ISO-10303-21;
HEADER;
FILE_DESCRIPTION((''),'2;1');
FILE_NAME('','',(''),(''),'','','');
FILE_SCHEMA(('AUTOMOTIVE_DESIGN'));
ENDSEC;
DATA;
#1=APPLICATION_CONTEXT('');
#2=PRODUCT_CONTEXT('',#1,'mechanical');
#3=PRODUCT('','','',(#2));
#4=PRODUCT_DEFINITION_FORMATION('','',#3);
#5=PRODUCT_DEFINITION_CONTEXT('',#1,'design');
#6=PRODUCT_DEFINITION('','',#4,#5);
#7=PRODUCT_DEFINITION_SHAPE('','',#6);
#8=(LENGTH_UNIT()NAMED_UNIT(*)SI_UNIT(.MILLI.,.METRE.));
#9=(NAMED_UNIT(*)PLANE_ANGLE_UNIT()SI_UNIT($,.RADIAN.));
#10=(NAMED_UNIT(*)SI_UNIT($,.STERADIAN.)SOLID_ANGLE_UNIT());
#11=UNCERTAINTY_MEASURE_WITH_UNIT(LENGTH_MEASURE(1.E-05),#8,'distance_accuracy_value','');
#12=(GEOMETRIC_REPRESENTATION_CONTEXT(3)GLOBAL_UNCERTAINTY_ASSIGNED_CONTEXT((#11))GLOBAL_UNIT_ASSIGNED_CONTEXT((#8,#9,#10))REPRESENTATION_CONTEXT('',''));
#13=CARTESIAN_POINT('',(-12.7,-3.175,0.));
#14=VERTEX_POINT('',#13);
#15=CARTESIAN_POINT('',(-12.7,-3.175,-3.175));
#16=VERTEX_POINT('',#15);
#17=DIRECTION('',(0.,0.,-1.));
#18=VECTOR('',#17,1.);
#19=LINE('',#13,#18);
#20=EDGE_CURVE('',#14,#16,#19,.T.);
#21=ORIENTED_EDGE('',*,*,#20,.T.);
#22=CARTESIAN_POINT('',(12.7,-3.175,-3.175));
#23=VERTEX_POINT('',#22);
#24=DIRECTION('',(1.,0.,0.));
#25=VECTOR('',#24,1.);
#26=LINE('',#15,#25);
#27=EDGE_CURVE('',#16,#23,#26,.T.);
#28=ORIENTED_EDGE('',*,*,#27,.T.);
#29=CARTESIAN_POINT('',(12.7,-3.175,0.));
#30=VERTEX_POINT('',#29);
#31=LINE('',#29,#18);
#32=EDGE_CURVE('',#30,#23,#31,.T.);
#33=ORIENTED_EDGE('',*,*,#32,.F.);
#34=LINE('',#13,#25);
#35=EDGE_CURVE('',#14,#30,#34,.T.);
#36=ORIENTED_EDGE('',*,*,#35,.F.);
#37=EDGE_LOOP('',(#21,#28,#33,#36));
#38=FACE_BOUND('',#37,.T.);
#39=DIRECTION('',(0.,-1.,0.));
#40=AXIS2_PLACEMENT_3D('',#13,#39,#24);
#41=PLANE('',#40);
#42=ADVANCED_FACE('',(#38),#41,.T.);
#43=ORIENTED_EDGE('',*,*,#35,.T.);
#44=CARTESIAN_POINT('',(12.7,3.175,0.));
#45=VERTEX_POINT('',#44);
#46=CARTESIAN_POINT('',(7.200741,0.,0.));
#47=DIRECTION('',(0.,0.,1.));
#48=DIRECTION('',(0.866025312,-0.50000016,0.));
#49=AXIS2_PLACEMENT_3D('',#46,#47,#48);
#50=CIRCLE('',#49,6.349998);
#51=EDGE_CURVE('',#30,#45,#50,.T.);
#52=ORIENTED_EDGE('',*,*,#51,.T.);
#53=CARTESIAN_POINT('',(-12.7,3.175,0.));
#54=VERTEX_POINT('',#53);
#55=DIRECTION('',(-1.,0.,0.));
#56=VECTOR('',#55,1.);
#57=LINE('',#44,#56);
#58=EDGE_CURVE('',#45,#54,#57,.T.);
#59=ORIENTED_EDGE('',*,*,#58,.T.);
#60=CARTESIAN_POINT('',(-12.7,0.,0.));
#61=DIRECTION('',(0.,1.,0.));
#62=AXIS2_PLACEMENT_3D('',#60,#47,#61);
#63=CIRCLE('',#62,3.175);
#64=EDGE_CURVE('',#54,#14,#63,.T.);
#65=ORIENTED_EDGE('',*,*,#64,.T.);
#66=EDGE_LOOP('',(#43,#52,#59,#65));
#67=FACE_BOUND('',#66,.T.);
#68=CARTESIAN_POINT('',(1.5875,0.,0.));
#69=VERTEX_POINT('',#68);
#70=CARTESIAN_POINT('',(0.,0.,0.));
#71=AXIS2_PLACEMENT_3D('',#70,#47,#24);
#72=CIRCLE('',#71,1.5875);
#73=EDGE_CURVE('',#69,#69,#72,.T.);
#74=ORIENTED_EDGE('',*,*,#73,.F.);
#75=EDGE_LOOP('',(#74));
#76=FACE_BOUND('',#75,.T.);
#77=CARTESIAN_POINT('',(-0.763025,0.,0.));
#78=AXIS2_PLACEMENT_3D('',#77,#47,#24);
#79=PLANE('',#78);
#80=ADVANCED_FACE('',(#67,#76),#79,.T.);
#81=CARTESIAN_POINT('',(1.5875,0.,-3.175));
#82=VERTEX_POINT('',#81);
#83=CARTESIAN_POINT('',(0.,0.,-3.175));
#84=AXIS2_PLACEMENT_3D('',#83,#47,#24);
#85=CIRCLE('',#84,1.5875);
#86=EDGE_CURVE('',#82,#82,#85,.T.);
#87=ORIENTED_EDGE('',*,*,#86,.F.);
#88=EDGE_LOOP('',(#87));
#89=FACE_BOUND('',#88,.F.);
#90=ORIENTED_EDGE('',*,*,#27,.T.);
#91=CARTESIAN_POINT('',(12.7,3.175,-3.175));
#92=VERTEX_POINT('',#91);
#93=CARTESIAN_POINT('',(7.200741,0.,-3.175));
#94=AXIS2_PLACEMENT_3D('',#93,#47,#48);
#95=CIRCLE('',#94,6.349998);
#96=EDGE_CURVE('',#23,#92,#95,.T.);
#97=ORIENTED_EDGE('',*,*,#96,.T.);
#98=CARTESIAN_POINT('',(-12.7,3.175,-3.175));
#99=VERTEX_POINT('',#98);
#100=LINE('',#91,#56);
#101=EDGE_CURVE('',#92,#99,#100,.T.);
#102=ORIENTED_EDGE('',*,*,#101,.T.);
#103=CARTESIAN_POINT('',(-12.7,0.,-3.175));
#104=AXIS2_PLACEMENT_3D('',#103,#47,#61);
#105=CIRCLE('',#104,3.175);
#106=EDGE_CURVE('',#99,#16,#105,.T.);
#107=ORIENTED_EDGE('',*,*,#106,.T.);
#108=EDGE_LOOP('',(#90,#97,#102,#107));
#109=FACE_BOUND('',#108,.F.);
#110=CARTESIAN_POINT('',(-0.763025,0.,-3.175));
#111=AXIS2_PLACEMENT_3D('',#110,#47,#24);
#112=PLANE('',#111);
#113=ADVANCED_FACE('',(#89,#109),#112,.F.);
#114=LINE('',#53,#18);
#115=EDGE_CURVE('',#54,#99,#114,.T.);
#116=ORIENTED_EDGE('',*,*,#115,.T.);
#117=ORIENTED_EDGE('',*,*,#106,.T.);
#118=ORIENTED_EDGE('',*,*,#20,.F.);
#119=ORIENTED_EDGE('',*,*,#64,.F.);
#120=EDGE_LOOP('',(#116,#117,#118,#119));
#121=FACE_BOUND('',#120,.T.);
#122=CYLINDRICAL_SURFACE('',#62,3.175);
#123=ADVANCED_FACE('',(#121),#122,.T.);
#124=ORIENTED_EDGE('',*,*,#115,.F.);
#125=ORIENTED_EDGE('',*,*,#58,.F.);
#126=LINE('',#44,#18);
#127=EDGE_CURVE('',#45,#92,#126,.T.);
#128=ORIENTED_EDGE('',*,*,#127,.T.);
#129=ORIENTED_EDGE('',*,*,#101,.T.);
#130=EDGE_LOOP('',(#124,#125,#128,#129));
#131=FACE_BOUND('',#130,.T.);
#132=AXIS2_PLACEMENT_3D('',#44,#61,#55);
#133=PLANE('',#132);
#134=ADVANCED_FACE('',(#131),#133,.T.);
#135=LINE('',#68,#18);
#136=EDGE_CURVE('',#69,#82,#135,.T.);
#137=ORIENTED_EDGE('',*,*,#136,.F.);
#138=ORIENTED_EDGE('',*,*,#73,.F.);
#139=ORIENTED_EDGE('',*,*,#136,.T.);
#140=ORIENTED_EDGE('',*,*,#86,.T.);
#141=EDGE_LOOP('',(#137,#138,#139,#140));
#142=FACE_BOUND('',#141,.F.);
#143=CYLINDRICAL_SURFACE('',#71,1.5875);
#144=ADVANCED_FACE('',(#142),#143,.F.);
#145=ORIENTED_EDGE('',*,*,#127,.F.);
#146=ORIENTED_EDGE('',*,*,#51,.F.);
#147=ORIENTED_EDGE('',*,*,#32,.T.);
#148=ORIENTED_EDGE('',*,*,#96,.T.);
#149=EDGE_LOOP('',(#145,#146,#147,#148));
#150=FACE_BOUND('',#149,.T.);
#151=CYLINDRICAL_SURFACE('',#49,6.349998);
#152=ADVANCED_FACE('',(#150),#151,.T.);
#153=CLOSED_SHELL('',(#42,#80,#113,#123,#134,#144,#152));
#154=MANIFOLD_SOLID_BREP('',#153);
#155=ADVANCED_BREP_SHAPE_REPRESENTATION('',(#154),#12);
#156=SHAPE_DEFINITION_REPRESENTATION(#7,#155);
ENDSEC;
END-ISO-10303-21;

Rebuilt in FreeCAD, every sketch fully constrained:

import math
import FreeCAD as App
import Part
import Sketcher

V = App.Vector
Q = App.Units.Quantity

doc = App.newDocument("Part")
body = doc.addObject("PartDesign::Body", "Body")

# Sketch on XY plane
sketch1 = body.newObject("Sketcher::SketchObject", "Sketch")
sketch1.AttachmentSupport = (doc.getObject("XY_Plane"), [""])
sketch1.MapMode = "FlatFace"
sketch1.addGeometry([
    Part.ArcOfCircle(Part.Circle(V(7.200741, 0, 0), V(0, 0, 1), 6.349998), math.radians(-30.000011), math.radians(30.000011)),  # 0
    Part.LineSegment(V(12.7, 3.175, 0), V(-12.7, 3.175, 0)),  # 1
    Part.ArcOfCircle(Part.Circle(V(-12.7, 0, 0), V(0, 0, 1), 3.175), math.radians(90), math.radians(270)),  # 2
    Part.LineSegment(V(-12.7, -3.175, 0), V(12.7, -3.175, 0)),  # 3
    Part.Circle(V(0, 0, 0), V(0, 0, 1), 1.5875),  # 4
], False)
sketch1.addConstraint([
    Sketcher.Constraint("Coincident", 0, 2, 1, 1),
    Sketcher.Constraint("Tangent", 1, 2, 2, 1),
    Sketcher.Constraint("Tangent", 2, 2, 3, 1),
    Sketcher.Constraint("Coincident", 3, 2, 0, 1),
    Sketcher.Constraint("Horizontal", 1),
    Sketcher.Constraint("Horizontal", 3),
    Sketcher.Constraint("Coincident", 4, 3, -1, 1),
    Sketcher.Constraint("Symmetric", 0, 2, 2, 2, -1, 1),
    Sketcher.Constraint("PointOnObject", 0, 3, -1),
    Sketcher.Constraint("DistanceX", 1, 2, 1, 1, Q("1 in")),
    Sketcher.Constraint("Radius", 0, Q("0.2499999 in")),
    Sketcher.Constraint("Diameter", 4, Q("0.125 in")),
    Sketcher.Constraint("Radius", 2, Q("0.125 in")),
])
pad1 = body.newObject("PartDesign::Pad", "Pad")
pad1.Profile = sketch1
pad1.Length = Q("0.125 in")
pad1.Reversed = True

doc.recompute()
